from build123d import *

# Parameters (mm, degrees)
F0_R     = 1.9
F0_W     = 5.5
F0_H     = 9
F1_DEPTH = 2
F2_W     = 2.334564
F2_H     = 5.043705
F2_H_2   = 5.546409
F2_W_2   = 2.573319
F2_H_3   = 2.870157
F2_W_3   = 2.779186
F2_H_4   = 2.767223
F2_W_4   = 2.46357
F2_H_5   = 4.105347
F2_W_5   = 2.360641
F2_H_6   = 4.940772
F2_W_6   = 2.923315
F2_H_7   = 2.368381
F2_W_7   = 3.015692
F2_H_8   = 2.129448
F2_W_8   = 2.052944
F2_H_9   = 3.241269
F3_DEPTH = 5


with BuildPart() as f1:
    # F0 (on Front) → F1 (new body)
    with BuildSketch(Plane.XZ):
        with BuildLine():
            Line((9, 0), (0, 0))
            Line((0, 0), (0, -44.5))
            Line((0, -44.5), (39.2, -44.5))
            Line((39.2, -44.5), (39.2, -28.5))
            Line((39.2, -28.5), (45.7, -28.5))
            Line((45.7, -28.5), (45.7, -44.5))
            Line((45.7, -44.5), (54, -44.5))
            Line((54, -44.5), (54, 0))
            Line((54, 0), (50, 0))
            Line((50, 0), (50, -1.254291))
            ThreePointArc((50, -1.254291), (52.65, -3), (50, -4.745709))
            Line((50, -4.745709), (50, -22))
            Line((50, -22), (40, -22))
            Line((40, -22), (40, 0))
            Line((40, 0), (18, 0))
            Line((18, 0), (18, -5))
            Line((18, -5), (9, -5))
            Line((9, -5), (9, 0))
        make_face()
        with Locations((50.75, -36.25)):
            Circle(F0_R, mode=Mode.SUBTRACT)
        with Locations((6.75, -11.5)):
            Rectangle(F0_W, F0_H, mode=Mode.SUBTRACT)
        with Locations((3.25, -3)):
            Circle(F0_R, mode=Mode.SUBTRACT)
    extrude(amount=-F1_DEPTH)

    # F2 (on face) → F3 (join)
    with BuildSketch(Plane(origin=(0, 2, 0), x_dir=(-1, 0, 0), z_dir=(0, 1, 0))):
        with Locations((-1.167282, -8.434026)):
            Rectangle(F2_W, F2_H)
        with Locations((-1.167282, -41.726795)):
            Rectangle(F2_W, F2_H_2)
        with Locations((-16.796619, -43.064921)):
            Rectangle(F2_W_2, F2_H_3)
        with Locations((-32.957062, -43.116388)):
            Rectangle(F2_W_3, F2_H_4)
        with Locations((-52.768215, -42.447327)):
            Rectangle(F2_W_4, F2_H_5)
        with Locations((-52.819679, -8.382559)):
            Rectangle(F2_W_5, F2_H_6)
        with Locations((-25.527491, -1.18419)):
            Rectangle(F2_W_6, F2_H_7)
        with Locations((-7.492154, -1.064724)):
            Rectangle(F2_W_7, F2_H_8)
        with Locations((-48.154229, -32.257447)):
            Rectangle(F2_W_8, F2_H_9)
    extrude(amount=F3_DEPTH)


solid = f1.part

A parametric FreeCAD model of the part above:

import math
import FreeCAD as App
import Part
import Sketcher
Q = App.Units.Quantity

doc = App.newDocument("Part")
body = doc.addObject("PartDesign::Body", "Body")

# Sketch on XZ plane
sketch1 = doc.addObject("Sketcher::SketchObject", "Sketch")
body.addObject(sketch1)
sketch1.AttachmentSupport = (doc.XZ_Plane, [""])
sketch1.MapMode = "FlatFace"
sketch1.addGeometry([
    Part.LineSegment(App.Vector(9, 0, 0), App.Vector(0, 0, 0)),  # 0
    Part.LineSegment(App.Vector(0, 0, 0), App.Vector(0, -44.5, 0)),  # 1
    Part.LineSegment(App.Vector(0, -44.5, 0), App.Vector(39.2, -44.5, 0)),  # 2
    Part.LineSegment(App.Vector(39.2, -44.5, 0), App.Vector(39.2, -28.5, 0)),  # 3
    Part.LineSegment(App.Vector(39.2, -28.5, 0), App.Vector(45.7, -28.5, 0)),  # 4
    Part.LineSegment(App.Vector(45.7, -28.5, 0), App.Vector(45.7, -44.5, 0)),  # 5
    Part.LineSegment(App.Vector(45.7, -44.5, 0), App.Vector(54, -44.5, 0)),  # 6
    Part.LineSegment(App.Vector(54, -44.5, 0), App.Vector(54, 0, 0)),  # 7
    Part.LineSegment(App.Vector(54, 0, 0), App.Vector(50, 0, 0)),  # 8
    Part.LineSegment(App.Vector(50, 0, 0), App.Vector(50, -1.254291, 0)),  # 9
    Part.ArcOfCircle(Part.Circle(App.Vector(50.75, -3, 0), App.Vector(0, 0, 1), 1.9), math.radians(-113.249563), math.radians(113.249563)),  # 10
    Part.LineSegment(App.Vector(50, -4.745709, 0), App.Vector(50, -22, 0)),  # 11
    Part.LineSegment(App.Vector(50, -22, 0), App.Vector(40, -22, 0)),  # 12
    Part.LineSegment(App.Vector(40, -22, 0), App.Vector(40, 0, 0)),  # 13
    Part.LineSegment(App.Vector(40, 0, 0), App.Vector(18, 0, 0)),  # 14
    Part.LineSegment(App.Vector(18, 0, 0), App.Vector(18, -5, 0)),  # 15
    Part.LineSegment(App.Vector(18, -5, 0), App.Vector(9, -5, 0)),  # 16
    Part.LineSegment(App.Vector(9, -5, 0), App.Vector(9, 0, 0)),  # 17
    Part.Circle(App.Vector(50.75, -36.25, 0), App.Vector(0, 0, 1), 1.9),  # 18
    Part.LineSegment(App.Vector(9.5, -16, 0), App.Vector(4, -16, 0)),  # 19
    Part.LineSegment(App.Vector(4, -16, 0), App.Vector(4, -7, 0)),  # 20
    Part.LineSegment(App.Vector(4, -7, 0), App.Vector(9.5, -7, 0)),  # 21
    Part.LineSegment(App.Vector(9.5, -7, 0), App.Vector(9.5, -16, 0)),  # 22
    Part.Circle(App.Vector(3.25, -3, 0), App.Vector(0, 0, 1), 1.9),  # 23
], False)
sketch1.addConstraint([
    Sketcher.Constraint("Coincident", 0, 2, 1, 1),
    Sketcher.Constraint("Coincident", 1, 2, 2, 1),
    Sketcher.Constraint("Coincident", 2, 2, 3, 1),
    Sketcher.Constraint("Coincident", 3, 2, 4, 1),
    Sketcher.Constraint("Coincident", 4, 2, 5, 1),
    Sketcher.Constraint("Coincident", 5, 2, 6, 1),
    Sketcher.Constraint("Coincident", 6, 2, 7, 1),
    Sketcher.Constraint("Coincident", 7, 2, 8, 1),
    Sketcher.Constraint("Coincident", 8, 2, 9, 1),
    Sketcher.Constraint("Coincident", 9, 2, 10, 2),
    Sketcher.Constraint("Coincident", 10, 1, 11, 1),
    Sketcher.Constraint("Coincident", 11, 2, 12, 1),
    Sketcher.Constraint("Coincident", 12, 2, 13, 1),
    Sketcher.Constraint("Coincident", 13, 2, 14, 1),
    Sketcher.Constraint("Coincident", 14, 2, 15, 1),
    Sketcher.Constraint("Coincident", 15, 2, 16, 1),
    Sketcher.Constraint("Coincident", 16, 2, 17, 1),
    Sketcher.Constraint("Coincident", 17, 2, 0, 1),
    Sketcher.Constraint("Coincident", 19, 2, 20, 1),
    Sketcher.Constraint("Coincident", 20, 2, 21, 1),
    Sketcher.Constraint("Coincident", 21, 2, 22, 1),
    Sketcher.Constraint("Coincident", 22, 2, 19, 1),
    Sketcher.Constraint("Horizontal", 0),
    Sketcher.Constraint("Vertical", 1),
    Sketcher.Constraint("Horizontal", 2),
    Sketcher.Constraint("Vertical", 3),
    Sketcher.Constraint("Horizontal", 4),
    Sketcher.Constraint("Vertical", 5),
    Sketcher.Constraint("Horizontal", 6),
    Sketcher.Constraint("Vertical", 7),
    Sketcher.Constraint("Horizontal", 8),
    Sketcher.Constraint("Vertical", 9),
    Sketcher.Constraint("Vertical", 11),
    Sketcher.Constraint("Horizontal", 12),
    Sketcher.Constraint("Vertical", 13),
    Sketcher.Constraint("Horizontal", 14),
    Sketcher.Constraint("Vertical", 15),
    Sketcher.Constraint("Horizontal", 16),
    Sketcher.Constraint("Vertical", 17),
    Sketcher.Constraint("Horizontal", 19),
    Sketcher.Constraint("Vertical", 20),
    Sketcher.Constraint("Horizontal", 21),
    Sketcher.Constraint("Vertical", 22),
    Sketcher.Constraint("Coincident", 0, 2, -1, 1),
    Sketcher.Constraint("Equal", 10, 18),
    Sketcher.Constraint("Equal", 18, 23),
    Sketcher.Constraint("PointOnObject", 7, 2, -1),
    Sketcher.Constraint("PointOnObject", 13, 2, -1),
    Sketcher.Constraint("Horizontal", 10, 3, 23, 3),
    Sketcher.Constraint("Horizontal", 2, 2, 5, 2),
    Sketcher.Constraint("Vertical", 10, 3, 18, 3),
    Sketcher.Constraint("Vertical", 9, 2, 10, 1),
    Sketcher.Constraint("Equal", 0, 16),
    Sketcher.Constraint("Equal", 14, 13),
    Sketcher.Constraint("Equal", 16, 20),
    Sketcher.Constraint("Diameter", 18, Q("3.8 mm")),
    Sketcher.Constraint("DistanceX", 0, 2, 0, 1, Q("9 mm")),
    Sketcher.Constraint("DistanceX", 8, 2, 8, 1, Q("4 mm")),
    Sketcher.Constraint("DistanceX", 12, 2, 12, 1, Q("10 mm")),
    Sketcher.Constraint("DistanceX", 14, 2, 14, 1, Q("22 mm")),
    Sketcher.Constraint("DistanceY", 3, 1, 3, 2, Q("16 mm")),
    Sketcher.Constraint("DistanceY", 15, 2, 15, 1, Q("5 mm")),
    Sketcher.Constraint("DistanceX", 2, 1, 2, 2, Q("39.2 mm")),
    Sketcher.Constraint("DistanceX", 4, 1, 4, 2, Q("6.5 mm")),
    Sketcher.Constraint("DistanceX", 19, 2, 19, 1, Q("5.5 mm")),
    Sketcher.Constraint("DistanceY", 1, 2, 1, 1, Q("44.5 mm")),
    Sketcher.Constraint("DistanceY", 10, 3, -1, 1, Q("3 mm")),
    Sketcher.Constraint("DistanceX", -1, 1, 19, 2, Q("4 mm")),
    Sketcher.Constraint("DistanceY", 19, 2, -1, 1, Q("16 mm")),
    Sketcher.Constraint("DistanceX", 23, 3, 10, 3, Q("47.5 mm")),
    Sketcher.Constraint("DistanceX", -1, 1, 10, 3, Q("50.75 mm")),
    Sketcher.Constraint("DistanceY", 18, 3, -1, 1, Q("36.25 mm")),
])
pad1 = doc.addObject("PartDesign::Pad", "Pad")
body.addObject(pad1)
pad1.Profile = sketch1
pad1.Length = 2
pad1.Reversed = True

# Sketch on XZ plane
sketch2 = doc.addObject("Sketcher::SketchObject", "Sketch001")
body.addObject(sketch2)
sketch2.AttachmentSupport = (doc.XZ_Plane, [""])
sketch2.MapMode = "FlatFace"
sketch2.AttachmentOffset = App.Placement(App.Vector(0, 0, -2), App.Rotation())
sketch2.addGeometry([
    Part.LineSegment(App.Vector(2.334564, -5.912173, 0), App.Vector(2.334564, -10.955879, 0)),  # 0
    Part.LineSegment(App.Vector(2.334564, -10.955879, 0), App.Vector(0, -10.955879, 0)),  # 1
    Part.LineSegment(App.Vector(0, -10.955879, 0), App.Vector(0, -5.912173, 0)),  # 2
    Part.LineSegment(App.Vector(0, -5.912173, 0), App.Vector(2.334564, -5.912173, 0)),  # 3
    Part.LineSegment(App.Vector(2.334564, -38.95359, 0), App.Vector(2.334564, -44.5, 0)),  # 4
    Part.LineSegment(App.Vector(2.334564, -44.5, 0), App.Vector(0, -44.5, 0)),  # 5
    Part.LineSegment(App.Vector(0, -44.5, 0), App.Vector(0, -38.95359, 0)),  # 6
    Part.LineSegment(App.Vector(0, -38.95359, 0), App.Vector(2.334564, -38.95359, 0)),  # 7
    Part.LineSegment(App.Vector(18.083278, -41.629843, 0), App.Vector(18.083278, -44.5, 0)),  # 8
    Part.LineSegment(App.Vector(18.083278, -44.5, 0), App.Vector(15.50996, -44.5, 0)),  # 9
    Part.LineSegment(App.Vector(15.50996, -44.5, 0), App.Vector(15.50996, -41.629843, 0)),  # 10
    Part.LineSegment(App.Vector(15.50996, -41.629843, 0), App.Vector(18.083278, -41.629843, 0)),  # 11
    Part.LineSegment(App.Vector(34.346655, -41.732776, 0), App.Vector(34.346655, -44.5, 0)),  # 12
    Part.LineSegment(App.Vector(34.346655, -44.5, 0), App.Vector(31.567469, -44.5, 0)),  # 13
    Part.LineSegment(App.Vector(31.567469, -44.5, 0), App.Vector(31.567469, -41.732776, 0)),  # 14
    Part.LineSegment(App.Vector(31.567469, -41.732776, 0), App.Vector(34.346655, -41.732776, 0)),  # 15
    Part.LineSegment(App.Vector(54, -40.394653, 0), App.Vector(54, -44.5, 0)),  # 16
    Part.LineSegment(App.Vector(54, -44.5, 0), App.Vector(51.53643, -44.5, 0)),  # 17
    Part.LineSegment(App.Vector(51.53643, -44.5, 0), App.Vector(51.53643, -40.394653, 0)),  # 18
    Part.LineSegment(App.Vector(51.53643, -40.394653, 0), App.Vector(54, -40.394653, 0)),  # 19
    Part.LineSegment(App.Vector(54, -5.912173, 0), App.Vector(54, -10.852945, 0)),  # 20
    Part.LineSegment(App.Vector(54, -10.852945, 0), App.Vector(51.639359, -10.852945, 0)),  # 21
    Part.LineSegment(App.Vector(51.639359, -10.852945, 0), App.Vector(51.639359, -5.912173, 0)),  # 22
    Part.LineSegment(App.Vector(51.639359, -5.912173, 0), App.Vector(54, -5.912173, 0)),  # 23
    Part.LineSegment(App.Vector(26.989148, 0, 0), App.Vector(26.989148, -2.368381, 0)),  # 24
    Part.LineSegment(App.Vector(26.989148, -2.368381, 0), App.Vector(24.065834, -2.368381, 0)),  # 25
    Part.LineSegment(App.Vector(24.065834, -2.368381, 0), App.Vector(24.065834, 0, 0)),  # 26
    Part.LineSegment(App.Vector(24.065834, 0, 0), App.Vector(26.989148, 0, 0)),  # 27
    Part.LineSegment(App.Vector(9, 0, 0), App.Vector(9, -2.129448, 0)),  # 28
    Part.LineSegment(App.Vector(9, -2.129448, 0), App.Vector(5.984308, -2.129448, 0)),  # 29
    Part.LineSegment(App.Vector(5.984308, -2.129448, 0), App.Vector(5.984308, 0, 0)),  # 30
    Part.LineSegment(App.Vector(5.984308, 0, 0), App.Vector(9, 0, 0)),  # 31
    Part.LineSegment(App.Vector(49.180701, -30.636813, 0), App.Vector(49.180701, -33.878082, 0)),  # 32
    Part.LineSegment(App.Vector(49.180701, -33.878082, 0), App.Vector(47.127757, -33.878082, 0)),  # 33
    Part.LineSegment(App.Vector(47.127757, -33.878082, 0), App.Vector(47.127757, -30.636813, 0)),  # 34
    Part.LineSegment(App.Vector(47.127757, -30.636813, 0), App.Vector(49.180701, -30.636813, 0)),  # 35
], False)
sketch2.addConstraint([
    Sketcher.Constraint("Coincident", 0, 2, 1, 1),
    Sketcher.Constraint("Coincident", 1, 2, 2, 1),
    Sketcher.Constraint("Coincident", 2, 2, 3, 1),
    Sketcher.Constraint("Coincident", 3, 2, 0, 1),
    Sketcher.Constraint("Coincident", 4, 2, 5, 1),
    Sketcher.Constraint("Coincident", 5, 2, 6, 1),
    Sketcher.Constraint("Coincident", 6, 2, 7, 1),
    Sketcher.Constraint("Coincident", 7, 2, 4, 1),
    Sketcher.Constraint("Coincident", 8, 2, 9, 1),
    Sketcher.Constraint("Coincident", 9, 2, 10, 1),
    Sketcher.Constraint("Coincident", 10, 2, 11, 1),
    Sketcher.Constraint("Coincident", 11, 2, 8, 1),
    Sketcher.Constraint("Coincident", 12, 2, 13, 1),
    Sketcher.Constraint("Coincident", 13, 2, 14, 1),
    Sketcher.Constraint("Coincident", 14, 2, 15, 1),
    Sketcher.Constraint("Coincident", 15, 2, 12, 1),
    Sketcher.Constraint("Coincident", 16, 2, 17, 1),
    Sketcher.Constraint("Coincident", 17, 2, 18, 1),
    Sketcher.Constraint("Coincident", 18, 2, 19, 1),
    Sketcher.Constraint("Coincident", 19, 2, 16, 1),
    Sketcher.Constraint("Coincident", 20, 2, 21, 1),
    Sketcher.Constraint("Coincident", 21, 2, 22, 1),
    Sketcher.Constraint("Coincident", 22, 2, 23, 1),
    Sketcher.Constraint("Coincident", 23, 2, 20, 1),
    Sketcher.Constraint("Coincident", 24, 2, 25, 1),
    Sketcher.Constraint("Coincident", 25, 2, 26, 1),
    Sketcher.Constraint("Coincident", 26, 2, 27, 1),
    Sketcher.Constraint("Coincident", 27, 2, 24, 1),
    Sketcher.Constraint("Coincident", 28, 2, 29, 1),
    Sketcher.Constraint("Coincident", 29, 2, 30, 1),
    Sketcher.Constraint("Coincident", 30, 2, 31, 1),
    Sketcher.Constraint("Coincident", 31, 2, 28, 1),
    Sketcher.Constraint("Coincident", 32, 2, 33, 1),
    Sketcher.Constraint("Coincident", 33, 2, 34, 1),
    Sketcher.Constraint("Coincident", 34, 2, 35, 1),
    Sketcher.Constraint("Coincident", 35, 2, 32, 1),
    Sketcher.Constraint("Vertical", 0),
    Sketcher.Constraint("Horizontal", 1),
    Sketcher.Constraint("Vertical", 2),
    Sketcher.Constraint("Horizontal", 3),
    Sketcher.Constraint("Vertical", 4),
    Sketcher.Constraint("Horizontal", 5),
    Sketcher.Constraint("Vertical", 6),
    Sketcher.Constraint("Horizontal", 7),
    Sketcher.Constraint("Vertical", 8),
    Sketcher.Constraint("Horizontal", 9),
    Sketcher.Constraint("Vertical", 10),
    Sketcher.Constraint("Horizontal", 11),
    Sketcher.Constraint("Vertical", 12),
    Sketcher.Constraint("Horizontal", 13),
    Sketcher.Constraint("Vertical", 14),
    Sketcher.Constraint("Horizontal", 15),
    Sketcher.Constraint("Vertical", 16),
    Sketcher.Constraint("Horizontal", 17),
    Sketcher.Constraint("Vertical", 18),
    Sketcher.Constraint("Horizontal", 19),
    Sketcher.Constraint("Vertical", 20),
    Sketcher.Constraint("Horizontal", 21),
    Sketcher.Constraint("Vertical", 22),
    Sketcher.Constraint("Horizontal", 23),
    Sketcher.Constraint("Vertical", 24),
    Sketcher.Constraint("Horizontal", 25),
    Sketcher.Constraint("Vertical", 26),
    Sketcher.Constraint("Horizontal", 27),
    Sketcher.Constraint("Vertical", 28),
    Sketcher.Constraint("Horizontal", 29),
    Sketcher.Constraint("Vertical", 30),
    Sketcher.Constraint("Horizontal", 31),
    Sketcher.Constraint("Vertical", 32),
    Sketcher.Constraint("Horizontal", 33),
    Sketcher.Constraint("Vertical", 34),
    Sketcher.Constraint("Horizontal", 35),
    Sketcher.Constraint("PointOnObject", 1, 2, -2),
    Sketcher.Constraint("PointOnObject", 5, 2, -2),
    Sketcher.Constraint("PointOnObject", 26, 2, -1),
    Sketcher.Constraint("PointOnObject", 30, 2, -1),
    Sketcher.Constraint("Horizontal", 5, 2, 8, 2),
    Sketcher.Constraint("Horizontal", 9, 2, 12, 2),
    Sketcher.Constraint("Horizontal", 13, 2, 16, 2),
    Sketcher.Constraint("Horizontal", 3, 2, 22, 2),
    Sketcher.Constraint("Vertical", 3, 2, 4, 2),
    Sketcher.Constraint("Vertical", 19, 2, 20, 2),
    Sketcher.Constraint("DistanceX", -1, 1, 16, 2, Q("54 mm")),
    Sketcher.Constraint("DistanceX", -1, 1, 28, 2, Q("9 mm")),
    Sketcher.Constraint("DistanceY", 4, 2, -1, 1, Q("44.5 mm")),
    Sketcher.Constraint("DistanceX", 9, 2, 9, 1, Q("2.573319 mm")),
    Sketcher.Constraint("DistanceX", 17, 2, 17, 1, Q("2.46357 mm")),
    Sketcher.Constraint("DistanceX", 21, 2, 21, 1, Q("2.360641 mm")),
    Sketcher.Constraint("DistanceX", 29, 2, 29, 1, Q("3.015692 mm")),
    Sketcher.Constraint("DistanceY", 4, 2, 4, 1, Q("5.546409 mm")),
    Sketcher.Constraint("DistanceY", 24, 2, 24, 1, Q("2.368381 mm")),
    Sketcher.Constraint("DistanceY", 28, 2, 28, 1, Q("2.129448 mm")),
    Sketcher.Constraint("DistanceY", 32, 2, 32, 1, Q("3.241269 mm")),
    Sketcher.Constraint("DistanceX", -1, 1, 32, 2, Q("49.180701 mm")),
    Sketcher.Constraint("DistanceX", 1, 2, 1, 1, Q("2.334564 mm")),
    Sketcher.Constraint("DistanceX", 13, 2, 13, 1, Q("2.779186 mm")),
    Sketcher.Constraint("DistanceX", 25, 2, 25, 1, Q("2.923315 mm")),
    Sketcher.Constraint("DistanceX", 33, 2, 33, 1, Q("2.052944 mm")),
    Sketcher.Constraint("DistanceY", 0, 2, 0, 1, Q("5.043705 mm")),
    Sketcher.Constraint("DistanceY", 8, 2, 8, 1, Q("2.870157 mm")),
    Sketcher.Constraint("DistanceY", 12, 2, 12, 1, Q("2.767223 mm")),
    Sketcher.Constraint("DistanceY", 16, 2, 16, 1, Q("4.105347 mm")),
    Sketcher.Constraint("DistanceY", 20, 2, 20, 1, Q("4.940772 mm")),
    Sketcher.Constraint("DistanceY", 0, 2, -1, 1, Q("10.955879 mm")),
    Sketcher.Constraint("DistanceX", -1, 1, 8, 2, Q("18.083278 mm")),
    Sketcher.Constraint("DistanceX", -1, 1, 13, 2, Q("31.567469 mm")),
    Sketcher.Constraint("DistanceX", -1, 1, 24, 2, Q("26.989148 mm")),
    Sketcher.Constraint("DistanceY", 32, 2, -1, 1, Q("33.878082 mm")),
])
pad2 = doc.addObject("PartDesign::Pad", "Pad001")
body.addObject(pad2)
pad2.Profile = sketch2
pad2.Length = 5
pad2.Reversed = True

doc.recompute()
